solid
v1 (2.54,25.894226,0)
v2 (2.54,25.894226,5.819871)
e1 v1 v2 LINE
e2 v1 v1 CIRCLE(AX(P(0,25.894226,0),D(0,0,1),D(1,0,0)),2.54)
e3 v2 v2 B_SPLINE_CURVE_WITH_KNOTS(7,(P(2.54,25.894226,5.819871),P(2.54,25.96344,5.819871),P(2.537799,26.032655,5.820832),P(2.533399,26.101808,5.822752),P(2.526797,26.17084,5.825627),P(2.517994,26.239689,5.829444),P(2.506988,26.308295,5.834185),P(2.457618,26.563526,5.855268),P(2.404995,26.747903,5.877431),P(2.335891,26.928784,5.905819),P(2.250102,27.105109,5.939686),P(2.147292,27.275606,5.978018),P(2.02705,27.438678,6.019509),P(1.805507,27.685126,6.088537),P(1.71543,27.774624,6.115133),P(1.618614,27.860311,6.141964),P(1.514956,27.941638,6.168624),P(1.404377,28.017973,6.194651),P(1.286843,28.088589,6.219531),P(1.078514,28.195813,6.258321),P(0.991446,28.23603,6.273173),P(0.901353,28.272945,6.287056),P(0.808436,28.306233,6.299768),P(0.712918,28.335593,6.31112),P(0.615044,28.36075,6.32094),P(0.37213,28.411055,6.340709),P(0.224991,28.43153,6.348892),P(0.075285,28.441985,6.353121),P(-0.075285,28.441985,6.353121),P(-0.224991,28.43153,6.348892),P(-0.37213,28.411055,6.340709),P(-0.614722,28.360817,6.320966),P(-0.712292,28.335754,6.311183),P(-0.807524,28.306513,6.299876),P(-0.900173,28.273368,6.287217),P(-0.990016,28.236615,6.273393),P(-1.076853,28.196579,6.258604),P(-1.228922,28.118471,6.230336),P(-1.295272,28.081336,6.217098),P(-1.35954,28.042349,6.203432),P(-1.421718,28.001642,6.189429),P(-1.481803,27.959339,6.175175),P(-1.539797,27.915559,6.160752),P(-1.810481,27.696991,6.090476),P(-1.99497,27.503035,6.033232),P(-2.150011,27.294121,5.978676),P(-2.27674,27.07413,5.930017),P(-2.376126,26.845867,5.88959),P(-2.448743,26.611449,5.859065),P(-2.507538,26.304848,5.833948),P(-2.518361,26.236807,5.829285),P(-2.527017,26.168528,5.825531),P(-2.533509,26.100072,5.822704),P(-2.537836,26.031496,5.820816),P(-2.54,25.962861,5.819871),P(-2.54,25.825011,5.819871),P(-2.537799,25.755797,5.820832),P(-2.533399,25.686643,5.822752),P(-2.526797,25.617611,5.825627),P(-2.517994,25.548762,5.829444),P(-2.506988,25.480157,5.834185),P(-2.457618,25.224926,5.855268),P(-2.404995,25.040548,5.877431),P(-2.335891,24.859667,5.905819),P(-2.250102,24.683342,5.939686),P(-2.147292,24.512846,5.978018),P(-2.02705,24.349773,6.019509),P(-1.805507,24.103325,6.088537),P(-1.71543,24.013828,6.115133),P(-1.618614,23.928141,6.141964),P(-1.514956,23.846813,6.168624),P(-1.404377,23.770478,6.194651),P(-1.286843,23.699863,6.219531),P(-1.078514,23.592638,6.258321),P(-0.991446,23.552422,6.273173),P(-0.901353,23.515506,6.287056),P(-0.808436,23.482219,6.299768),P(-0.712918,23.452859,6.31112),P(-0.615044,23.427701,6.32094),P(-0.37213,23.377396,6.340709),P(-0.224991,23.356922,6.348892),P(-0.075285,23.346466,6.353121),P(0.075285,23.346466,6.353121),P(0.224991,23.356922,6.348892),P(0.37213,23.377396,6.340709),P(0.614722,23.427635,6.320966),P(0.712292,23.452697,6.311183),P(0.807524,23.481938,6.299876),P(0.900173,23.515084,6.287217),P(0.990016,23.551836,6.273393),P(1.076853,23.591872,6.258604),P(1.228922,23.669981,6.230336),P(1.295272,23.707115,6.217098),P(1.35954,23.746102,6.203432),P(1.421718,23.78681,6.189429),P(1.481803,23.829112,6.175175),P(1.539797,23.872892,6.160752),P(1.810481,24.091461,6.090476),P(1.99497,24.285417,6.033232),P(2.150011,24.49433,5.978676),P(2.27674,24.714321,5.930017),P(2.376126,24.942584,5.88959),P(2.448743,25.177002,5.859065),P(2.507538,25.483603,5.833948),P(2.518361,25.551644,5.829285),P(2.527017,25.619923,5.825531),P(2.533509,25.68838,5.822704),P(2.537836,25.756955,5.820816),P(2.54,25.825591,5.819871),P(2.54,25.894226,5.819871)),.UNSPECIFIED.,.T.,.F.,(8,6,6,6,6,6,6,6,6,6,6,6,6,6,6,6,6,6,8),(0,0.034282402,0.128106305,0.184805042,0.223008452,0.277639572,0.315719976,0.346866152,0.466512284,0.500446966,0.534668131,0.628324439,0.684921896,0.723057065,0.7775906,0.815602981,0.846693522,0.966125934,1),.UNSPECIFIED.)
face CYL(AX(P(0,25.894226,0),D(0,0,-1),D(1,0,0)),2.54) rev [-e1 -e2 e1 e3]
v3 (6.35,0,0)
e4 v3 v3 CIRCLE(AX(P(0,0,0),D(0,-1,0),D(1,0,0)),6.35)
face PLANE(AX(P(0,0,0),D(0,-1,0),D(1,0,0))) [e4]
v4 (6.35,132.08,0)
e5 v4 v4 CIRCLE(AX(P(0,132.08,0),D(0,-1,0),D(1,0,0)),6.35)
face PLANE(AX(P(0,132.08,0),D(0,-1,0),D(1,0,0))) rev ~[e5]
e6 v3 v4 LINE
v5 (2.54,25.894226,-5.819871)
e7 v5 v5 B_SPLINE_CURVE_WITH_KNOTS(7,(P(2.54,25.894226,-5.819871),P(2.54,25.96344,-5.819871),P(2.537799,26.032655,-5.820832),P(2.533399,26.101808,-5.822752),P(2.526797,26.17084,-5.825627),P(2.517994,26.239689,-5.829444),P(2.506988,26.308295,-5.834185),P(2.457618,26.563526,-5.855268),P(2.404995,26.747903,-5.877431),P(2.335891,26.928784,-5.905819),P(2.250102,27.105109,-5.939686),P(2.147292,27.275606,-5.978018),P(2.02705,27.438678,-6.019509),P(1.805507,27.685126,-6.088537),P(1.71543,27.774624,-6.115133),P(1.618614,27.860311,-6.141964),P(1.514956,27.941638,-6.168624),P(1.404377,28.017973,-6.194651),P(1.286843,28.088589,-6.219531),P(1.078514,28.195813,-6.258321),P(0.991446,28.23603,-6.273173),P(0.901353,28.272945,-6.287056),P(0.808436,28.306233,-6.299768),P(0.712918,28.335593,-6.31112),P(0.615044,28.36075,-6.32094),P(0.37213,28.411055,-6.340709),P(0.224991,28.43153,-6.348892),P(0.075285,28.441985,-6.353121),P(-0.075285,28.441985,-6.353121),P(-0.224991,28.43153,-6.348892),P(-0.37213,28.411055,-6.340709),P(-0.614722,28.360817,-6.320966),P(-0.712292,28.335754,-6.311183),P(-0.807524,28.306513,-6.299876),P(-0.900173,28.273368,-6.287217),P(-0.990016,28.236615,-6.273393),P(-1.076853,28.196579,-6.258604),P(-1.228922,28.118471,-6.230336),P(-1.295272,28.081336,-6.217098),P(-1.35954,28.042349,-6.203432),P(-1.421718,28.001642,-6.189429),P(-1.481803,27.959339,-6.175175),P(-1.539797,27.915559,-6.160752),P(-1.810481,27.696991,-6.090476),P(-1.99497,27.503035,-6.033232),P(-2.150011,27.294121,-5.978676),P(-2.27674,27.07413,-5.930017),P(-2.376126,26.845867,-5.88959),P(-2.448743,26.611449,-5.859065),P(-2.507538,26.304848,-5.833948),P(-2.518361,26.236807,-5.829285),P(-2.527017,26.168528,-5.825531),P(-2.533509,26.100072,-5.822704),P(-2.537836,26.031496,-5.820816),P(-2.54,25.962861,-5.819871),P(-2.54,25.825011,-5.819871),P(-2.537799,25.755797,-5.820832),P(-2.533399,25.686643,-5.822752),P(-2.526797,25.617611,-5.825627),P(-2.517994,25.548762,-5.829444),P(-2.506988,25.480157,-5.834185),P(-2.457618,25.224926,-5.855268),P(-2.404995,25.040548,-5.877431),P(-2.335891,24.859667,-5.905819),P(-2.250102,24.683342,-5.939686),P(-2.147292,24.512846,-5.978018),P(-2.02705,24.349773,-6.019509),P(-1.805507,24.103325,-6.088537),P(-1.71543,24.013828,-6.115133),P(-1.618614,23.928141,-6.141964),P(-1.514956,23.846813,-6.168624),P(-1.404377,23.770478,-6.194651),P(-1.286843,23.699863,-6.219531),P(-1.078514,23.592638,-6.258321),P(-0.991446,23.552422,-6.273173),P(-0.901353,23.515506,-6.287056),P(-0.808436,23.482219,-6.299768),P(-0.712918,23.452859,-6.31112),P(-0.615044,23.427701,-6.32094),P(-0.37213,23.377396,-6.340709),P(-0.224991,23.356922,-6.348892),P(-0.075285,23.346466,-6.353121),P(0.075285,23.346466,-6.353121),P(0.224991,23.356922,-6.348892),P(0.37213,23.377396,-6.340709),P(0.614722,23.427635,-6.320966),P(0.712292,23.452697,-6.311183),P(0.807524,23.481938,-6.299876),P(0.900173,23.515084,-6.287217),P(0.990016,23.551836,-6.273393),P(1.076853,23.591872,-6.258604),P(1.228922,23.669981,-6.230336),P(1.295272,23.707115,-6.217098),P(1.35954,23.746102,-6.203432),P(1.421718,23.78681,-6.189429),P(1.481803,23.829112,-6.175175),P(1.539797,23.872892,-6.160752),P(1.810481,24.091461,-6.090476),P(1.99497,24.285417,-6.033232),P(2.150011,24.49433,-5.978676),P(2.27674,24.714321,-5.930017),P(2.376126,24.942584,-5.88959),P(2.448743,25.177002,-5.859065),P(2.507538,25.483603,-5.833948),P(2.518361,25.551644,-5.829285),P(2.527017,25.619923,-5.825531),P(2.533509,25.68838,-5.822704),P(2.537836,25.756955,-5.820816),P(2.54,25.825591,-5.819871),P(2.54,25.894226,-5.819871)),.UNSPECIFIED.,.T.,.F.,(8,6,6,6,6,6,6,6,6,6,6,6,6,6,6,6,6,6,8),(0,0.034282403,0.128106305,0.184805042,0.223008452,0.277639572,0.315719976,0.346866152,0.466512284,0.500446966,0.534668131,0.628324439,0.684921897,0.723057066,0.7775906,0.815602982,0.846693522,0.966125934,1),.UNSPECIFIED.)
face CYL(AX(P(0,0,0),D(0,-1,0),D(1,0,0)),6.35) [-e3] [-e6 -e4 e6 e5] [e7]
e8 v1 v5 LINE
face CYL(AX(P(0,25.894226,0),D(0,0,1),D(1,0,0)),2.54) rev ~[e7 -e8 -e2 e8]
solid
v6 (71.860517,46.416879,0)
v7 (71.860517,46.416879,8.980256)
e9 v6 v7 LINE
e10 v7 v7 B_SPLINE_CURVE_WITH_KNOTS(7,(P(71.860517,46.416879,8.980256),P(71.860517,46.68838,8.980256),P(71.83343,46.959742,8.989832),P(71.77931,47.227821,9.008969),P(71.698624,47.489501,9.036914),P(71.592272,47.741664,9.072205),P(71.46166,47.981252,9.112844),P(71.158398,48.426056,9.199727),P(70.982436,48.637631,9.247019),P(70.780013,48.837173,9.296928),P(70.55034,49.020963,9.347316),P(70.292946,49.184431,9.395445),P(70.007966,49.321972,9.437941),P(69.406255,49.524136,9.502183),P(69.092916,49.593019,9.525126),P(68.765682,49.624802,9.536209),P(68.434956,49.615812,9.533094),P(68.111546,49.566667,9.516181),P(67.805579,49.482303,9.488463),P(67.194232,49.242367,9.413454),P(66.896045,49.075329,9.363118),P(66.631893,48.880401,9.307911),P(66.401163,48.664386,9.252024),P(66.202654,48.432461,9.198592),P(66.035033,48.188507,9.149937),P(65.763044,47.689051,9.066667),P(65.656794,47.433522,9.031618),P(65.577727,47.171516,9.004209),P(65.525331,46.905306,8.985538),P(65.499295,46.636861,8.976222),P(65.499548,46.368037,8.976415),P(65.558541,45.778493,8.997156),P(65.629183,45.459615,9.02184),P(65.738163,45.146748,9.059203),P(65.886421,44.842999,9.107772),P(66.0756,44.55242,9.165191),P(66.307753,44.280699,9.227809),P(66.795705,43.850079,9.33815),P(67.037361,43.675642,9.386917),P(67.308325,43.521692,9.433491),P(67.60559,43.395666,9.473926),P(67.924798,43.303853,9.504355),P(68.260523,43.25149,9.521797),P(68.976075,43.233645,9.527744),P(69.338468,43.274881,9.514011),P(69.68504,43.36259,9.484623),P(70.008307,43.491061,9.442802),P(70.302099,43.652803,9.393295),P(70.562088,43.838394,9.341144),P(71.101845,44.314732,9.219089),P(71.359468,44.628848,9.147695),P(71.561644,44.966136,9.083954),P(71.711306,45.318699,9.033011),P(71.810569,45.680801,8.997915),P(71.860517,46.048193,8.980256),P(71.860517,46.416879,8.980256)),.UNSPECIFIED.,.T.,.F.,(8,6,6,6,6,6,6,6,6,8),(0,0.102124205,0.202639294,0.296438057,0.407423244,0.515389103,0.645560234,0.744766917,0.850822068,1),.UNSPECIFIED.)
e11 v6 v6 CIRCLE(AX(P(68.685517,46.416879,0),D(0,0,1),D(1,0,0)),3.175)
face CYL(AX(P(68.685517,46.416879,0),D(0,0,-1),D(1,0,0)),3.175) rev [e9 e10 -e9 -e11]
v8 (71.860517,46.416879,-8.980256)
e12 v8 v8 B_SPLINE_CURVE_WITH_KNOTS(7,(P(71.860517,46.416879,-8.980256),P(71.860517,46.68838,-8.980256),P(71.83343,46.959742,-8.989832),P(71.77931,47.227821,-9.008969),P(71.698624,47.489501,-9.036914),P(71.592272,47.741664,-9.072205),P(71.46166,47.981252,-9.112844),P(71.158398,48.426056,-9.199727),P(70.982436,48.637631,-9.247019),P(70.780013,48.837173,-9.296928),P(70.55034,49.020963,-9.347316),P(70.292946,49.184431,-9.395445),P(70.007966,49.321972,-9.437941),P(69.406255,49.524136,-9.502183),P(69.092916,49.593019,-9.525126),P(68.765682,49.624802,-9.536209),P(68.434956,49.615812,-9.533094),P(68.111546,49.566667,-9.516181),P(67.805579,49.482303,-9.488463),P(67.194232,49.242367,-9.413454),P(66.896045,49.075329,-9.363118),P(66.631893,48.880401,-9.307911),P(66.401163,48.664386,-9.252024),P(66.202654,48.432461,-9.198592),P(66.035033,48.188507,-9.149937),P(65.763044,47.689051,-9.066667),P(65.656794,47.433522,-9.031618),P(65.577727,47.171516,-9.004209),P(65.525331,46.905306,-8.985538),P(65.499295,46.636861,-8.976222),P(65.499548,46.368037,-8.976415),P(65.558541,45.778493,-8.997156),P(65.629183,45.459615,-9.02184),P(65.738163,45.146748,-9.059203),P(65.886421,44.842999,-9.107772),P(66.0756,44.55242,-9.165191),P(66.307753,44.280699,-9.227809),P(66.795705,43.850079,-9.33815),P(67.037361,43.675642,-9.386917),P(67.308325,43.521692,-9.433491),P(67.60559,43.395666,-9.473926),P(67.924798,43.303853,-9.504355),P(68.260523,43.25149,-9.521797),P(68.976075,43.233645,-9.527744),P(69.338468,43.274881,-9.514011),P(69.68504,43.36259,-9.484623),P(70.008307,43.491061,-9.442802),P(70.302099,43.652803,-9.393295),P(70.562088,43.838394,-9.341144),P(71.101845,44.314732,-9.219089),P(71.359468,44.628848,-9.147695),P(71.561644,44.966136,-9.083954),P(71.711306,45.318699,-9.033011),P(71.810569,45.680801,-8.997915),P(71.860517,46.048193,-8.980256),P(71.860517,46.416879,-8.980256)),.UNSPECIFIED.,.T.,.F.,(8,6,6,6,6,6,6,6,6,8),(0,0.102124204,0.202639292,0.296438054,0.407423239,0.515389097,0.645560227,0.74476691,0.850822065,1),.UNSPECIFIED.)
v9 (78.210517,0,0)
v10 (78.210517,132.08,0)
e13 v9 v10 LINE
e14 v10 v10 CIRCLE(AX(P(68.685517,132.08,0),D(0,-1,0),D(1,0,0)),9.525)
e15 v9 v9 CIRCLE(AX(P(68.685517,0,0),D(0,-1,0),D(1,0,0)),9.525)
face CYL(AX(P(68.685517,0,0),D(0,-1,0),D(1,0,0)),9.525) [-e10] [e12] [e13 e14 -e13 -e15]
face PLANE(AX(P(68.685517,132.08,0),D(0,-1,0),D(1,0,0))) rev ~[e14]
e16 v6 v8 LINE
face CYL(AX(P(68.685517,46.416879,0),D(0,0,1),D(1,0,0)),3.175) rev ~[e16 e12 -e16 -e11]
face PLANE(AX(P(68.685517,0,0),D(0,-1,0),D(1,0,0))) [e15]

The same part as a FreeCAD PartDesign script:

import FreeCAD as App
import Part
import Sketcher
Q = App.Units.Quantity

doc = App.newDocument("Part")
params = doc.addObject("Spreadsheet::Sheet", "Params")
for row, (alias, value) in enumerate([
    ("sketch1_diameter", "0.5 in"),
    ("pad1_length", "5.2 in"),
    ("sketch2_diameter", "0.75 in"),
    ("pad2_length", "5.2 in"),
    ("sketch3_diameter", "0.2 in"),
    ("sketch3_diameter2", "0.25 in"),
    ("pad3_length", "9.526 mm"),
    ("pad3_length2", "9.526 mm"),
], start=1):
    params.set(f"A{row}", alias)
    params.set(f"B{row}", "=" + value)
    params.setAlias(f"B{row}", alias)

body = doc.addObject("PartDesign::Body", "Body")

# Sketch on XZ plane
sketch1 = doc.addObject("Sketcher::SketchObject", "Sketch")
body.addObject(sketch1)
sketch1.AttachmentSupport = (doc.XZ_Plane, [""])
sketch1.MapMode = "FlatFace"
sketch1.addGeometry(Part.Circle(App.Vector(0, 0, 0), App.Vector(0, 0, 1), 6), False)
sketch1.addConstraint([
    Sketcher.Constraint("Coincident", 0, 3, -1, 1),
    Sketcher.Constraint("Diameter", 0, Q("0.5 in")),
])
sketch1.setExpression("Constraints[1]", "Params.sketch1_diameter")
pad1 = doc.addObject("PartDesign::Pad", "Pad")
body.addObject(pad1)
pad1.Profile = sketch1
pad1.setExpression("Length", "Params.pad1_length")
pad1.Reversed = True
body2 = doc.addObject("PartDesign::Body", "Body001")

# Sketch on XZ plane
sketch2 = doc.addObject("Sketcher::SketchObject", "Sketch001")
body2.addObject(sketch2)
sketch2.AttachmentSupport = (doc.getObject("XZ_Plane001"), [""])
sketch2.MapMode = "FlatFace"
sketch2.addGeometry(Part.Circle(App.Vector(69, 0, 0), App.Vector(0, 0, 1), 10), False)
sketch2.addConstraint([
    Sketcher.Constraint("PointOnObject", 0, 3, -1),
    Sketcher.Constraint("Diameter", 0, Q("0.75 in")),
    Sketcher.Constraint("DistanceX", -1, 1, 0, 3, 68.685517),
])
sketch2.setExpression("Constraints[1]", "Params.sketch2_diameter")
pad2 = doc.addObject("PartDesign::Pad", "Pad001")
body2.addObject(pad2)
pad2.Profile = sketch2
pad2.setExpression("Length", "Params.pad2_length")
pad2.Reversed = True
body3 = doc.addObject("PartDesign::Body", "Body002")
body3.AllowCompound = True

# Sketch on XY plane
sketch3 = doc.addObject("Sketcher::SketchObject", "Sketch002")
body3.addObject(sketch3)
sketch3.AttachmentSupport = (doc.getObject("XY_Plane002"), [""])
sketch3.MapMode = "FlatFace"
sketch3.addGeometry([
    Part.Circle(App.Vector(0, 25.9, 0), App.Vector(0, 0, 1), 2.5),
    Part.Circle(App.Vector(68.7, 46.4, 0), App.Vector(0, 0, 1), 3.2),
], False)
sketch3.addConstraint([
    Sketcher.Constraint("PointOnObject", 0, 3, -2),
    Sketcher.Constraint("Diameter", 0, Q("0.2 in")),
    Sketcher.Constraint("Diameter", 1, Q("0.25 in")),
    Sketcher.Constraint("DistanceY", -1, 1, 1, 3, 46.416879),
    Sketcher.Constraint("DistanceY", -1, 1, 0, 3, 25.894226),
    Sketcher.Constraint("DistanceX", -1, 1, 1, 3, 68.685517),
])
sketch3.setExpression("Constraints[1]", "Params.sketch3_diameter")
sketch3.setExpression("Constraints[2]", "Params.sketch3_diameter2")
pad3 = doc.addObject("PartDesign::Pad", "Pad002")
body3.addObject(pad3)
pad3.Profile = sketch3
pad3.Type = "TwoLengths"
pad3.setExpression("Length", "Params.pad3_length")
pad3.setExpression("Length2", "Params.pad3_length2")
pad3.Reversed = True
doc.recompute()

body4 = doc.addObject("PartDesign::Body", "Body003")
body4.BaseFeature = body3
boolean = doc.addObject("PartDesign::Boolean", "Boolean")
body.addObject(boolean)
boolean.Type = "Cut"
boolean.addObjects([body4])
doc.recompute()

boolean2 = doc.addObject("PartDesign::Boolean", "Boolean001")
body2.addObject(boolean2)
boolean2.Type = "Cut"
boolean2.addObjects([body3])

doc.recompute()
